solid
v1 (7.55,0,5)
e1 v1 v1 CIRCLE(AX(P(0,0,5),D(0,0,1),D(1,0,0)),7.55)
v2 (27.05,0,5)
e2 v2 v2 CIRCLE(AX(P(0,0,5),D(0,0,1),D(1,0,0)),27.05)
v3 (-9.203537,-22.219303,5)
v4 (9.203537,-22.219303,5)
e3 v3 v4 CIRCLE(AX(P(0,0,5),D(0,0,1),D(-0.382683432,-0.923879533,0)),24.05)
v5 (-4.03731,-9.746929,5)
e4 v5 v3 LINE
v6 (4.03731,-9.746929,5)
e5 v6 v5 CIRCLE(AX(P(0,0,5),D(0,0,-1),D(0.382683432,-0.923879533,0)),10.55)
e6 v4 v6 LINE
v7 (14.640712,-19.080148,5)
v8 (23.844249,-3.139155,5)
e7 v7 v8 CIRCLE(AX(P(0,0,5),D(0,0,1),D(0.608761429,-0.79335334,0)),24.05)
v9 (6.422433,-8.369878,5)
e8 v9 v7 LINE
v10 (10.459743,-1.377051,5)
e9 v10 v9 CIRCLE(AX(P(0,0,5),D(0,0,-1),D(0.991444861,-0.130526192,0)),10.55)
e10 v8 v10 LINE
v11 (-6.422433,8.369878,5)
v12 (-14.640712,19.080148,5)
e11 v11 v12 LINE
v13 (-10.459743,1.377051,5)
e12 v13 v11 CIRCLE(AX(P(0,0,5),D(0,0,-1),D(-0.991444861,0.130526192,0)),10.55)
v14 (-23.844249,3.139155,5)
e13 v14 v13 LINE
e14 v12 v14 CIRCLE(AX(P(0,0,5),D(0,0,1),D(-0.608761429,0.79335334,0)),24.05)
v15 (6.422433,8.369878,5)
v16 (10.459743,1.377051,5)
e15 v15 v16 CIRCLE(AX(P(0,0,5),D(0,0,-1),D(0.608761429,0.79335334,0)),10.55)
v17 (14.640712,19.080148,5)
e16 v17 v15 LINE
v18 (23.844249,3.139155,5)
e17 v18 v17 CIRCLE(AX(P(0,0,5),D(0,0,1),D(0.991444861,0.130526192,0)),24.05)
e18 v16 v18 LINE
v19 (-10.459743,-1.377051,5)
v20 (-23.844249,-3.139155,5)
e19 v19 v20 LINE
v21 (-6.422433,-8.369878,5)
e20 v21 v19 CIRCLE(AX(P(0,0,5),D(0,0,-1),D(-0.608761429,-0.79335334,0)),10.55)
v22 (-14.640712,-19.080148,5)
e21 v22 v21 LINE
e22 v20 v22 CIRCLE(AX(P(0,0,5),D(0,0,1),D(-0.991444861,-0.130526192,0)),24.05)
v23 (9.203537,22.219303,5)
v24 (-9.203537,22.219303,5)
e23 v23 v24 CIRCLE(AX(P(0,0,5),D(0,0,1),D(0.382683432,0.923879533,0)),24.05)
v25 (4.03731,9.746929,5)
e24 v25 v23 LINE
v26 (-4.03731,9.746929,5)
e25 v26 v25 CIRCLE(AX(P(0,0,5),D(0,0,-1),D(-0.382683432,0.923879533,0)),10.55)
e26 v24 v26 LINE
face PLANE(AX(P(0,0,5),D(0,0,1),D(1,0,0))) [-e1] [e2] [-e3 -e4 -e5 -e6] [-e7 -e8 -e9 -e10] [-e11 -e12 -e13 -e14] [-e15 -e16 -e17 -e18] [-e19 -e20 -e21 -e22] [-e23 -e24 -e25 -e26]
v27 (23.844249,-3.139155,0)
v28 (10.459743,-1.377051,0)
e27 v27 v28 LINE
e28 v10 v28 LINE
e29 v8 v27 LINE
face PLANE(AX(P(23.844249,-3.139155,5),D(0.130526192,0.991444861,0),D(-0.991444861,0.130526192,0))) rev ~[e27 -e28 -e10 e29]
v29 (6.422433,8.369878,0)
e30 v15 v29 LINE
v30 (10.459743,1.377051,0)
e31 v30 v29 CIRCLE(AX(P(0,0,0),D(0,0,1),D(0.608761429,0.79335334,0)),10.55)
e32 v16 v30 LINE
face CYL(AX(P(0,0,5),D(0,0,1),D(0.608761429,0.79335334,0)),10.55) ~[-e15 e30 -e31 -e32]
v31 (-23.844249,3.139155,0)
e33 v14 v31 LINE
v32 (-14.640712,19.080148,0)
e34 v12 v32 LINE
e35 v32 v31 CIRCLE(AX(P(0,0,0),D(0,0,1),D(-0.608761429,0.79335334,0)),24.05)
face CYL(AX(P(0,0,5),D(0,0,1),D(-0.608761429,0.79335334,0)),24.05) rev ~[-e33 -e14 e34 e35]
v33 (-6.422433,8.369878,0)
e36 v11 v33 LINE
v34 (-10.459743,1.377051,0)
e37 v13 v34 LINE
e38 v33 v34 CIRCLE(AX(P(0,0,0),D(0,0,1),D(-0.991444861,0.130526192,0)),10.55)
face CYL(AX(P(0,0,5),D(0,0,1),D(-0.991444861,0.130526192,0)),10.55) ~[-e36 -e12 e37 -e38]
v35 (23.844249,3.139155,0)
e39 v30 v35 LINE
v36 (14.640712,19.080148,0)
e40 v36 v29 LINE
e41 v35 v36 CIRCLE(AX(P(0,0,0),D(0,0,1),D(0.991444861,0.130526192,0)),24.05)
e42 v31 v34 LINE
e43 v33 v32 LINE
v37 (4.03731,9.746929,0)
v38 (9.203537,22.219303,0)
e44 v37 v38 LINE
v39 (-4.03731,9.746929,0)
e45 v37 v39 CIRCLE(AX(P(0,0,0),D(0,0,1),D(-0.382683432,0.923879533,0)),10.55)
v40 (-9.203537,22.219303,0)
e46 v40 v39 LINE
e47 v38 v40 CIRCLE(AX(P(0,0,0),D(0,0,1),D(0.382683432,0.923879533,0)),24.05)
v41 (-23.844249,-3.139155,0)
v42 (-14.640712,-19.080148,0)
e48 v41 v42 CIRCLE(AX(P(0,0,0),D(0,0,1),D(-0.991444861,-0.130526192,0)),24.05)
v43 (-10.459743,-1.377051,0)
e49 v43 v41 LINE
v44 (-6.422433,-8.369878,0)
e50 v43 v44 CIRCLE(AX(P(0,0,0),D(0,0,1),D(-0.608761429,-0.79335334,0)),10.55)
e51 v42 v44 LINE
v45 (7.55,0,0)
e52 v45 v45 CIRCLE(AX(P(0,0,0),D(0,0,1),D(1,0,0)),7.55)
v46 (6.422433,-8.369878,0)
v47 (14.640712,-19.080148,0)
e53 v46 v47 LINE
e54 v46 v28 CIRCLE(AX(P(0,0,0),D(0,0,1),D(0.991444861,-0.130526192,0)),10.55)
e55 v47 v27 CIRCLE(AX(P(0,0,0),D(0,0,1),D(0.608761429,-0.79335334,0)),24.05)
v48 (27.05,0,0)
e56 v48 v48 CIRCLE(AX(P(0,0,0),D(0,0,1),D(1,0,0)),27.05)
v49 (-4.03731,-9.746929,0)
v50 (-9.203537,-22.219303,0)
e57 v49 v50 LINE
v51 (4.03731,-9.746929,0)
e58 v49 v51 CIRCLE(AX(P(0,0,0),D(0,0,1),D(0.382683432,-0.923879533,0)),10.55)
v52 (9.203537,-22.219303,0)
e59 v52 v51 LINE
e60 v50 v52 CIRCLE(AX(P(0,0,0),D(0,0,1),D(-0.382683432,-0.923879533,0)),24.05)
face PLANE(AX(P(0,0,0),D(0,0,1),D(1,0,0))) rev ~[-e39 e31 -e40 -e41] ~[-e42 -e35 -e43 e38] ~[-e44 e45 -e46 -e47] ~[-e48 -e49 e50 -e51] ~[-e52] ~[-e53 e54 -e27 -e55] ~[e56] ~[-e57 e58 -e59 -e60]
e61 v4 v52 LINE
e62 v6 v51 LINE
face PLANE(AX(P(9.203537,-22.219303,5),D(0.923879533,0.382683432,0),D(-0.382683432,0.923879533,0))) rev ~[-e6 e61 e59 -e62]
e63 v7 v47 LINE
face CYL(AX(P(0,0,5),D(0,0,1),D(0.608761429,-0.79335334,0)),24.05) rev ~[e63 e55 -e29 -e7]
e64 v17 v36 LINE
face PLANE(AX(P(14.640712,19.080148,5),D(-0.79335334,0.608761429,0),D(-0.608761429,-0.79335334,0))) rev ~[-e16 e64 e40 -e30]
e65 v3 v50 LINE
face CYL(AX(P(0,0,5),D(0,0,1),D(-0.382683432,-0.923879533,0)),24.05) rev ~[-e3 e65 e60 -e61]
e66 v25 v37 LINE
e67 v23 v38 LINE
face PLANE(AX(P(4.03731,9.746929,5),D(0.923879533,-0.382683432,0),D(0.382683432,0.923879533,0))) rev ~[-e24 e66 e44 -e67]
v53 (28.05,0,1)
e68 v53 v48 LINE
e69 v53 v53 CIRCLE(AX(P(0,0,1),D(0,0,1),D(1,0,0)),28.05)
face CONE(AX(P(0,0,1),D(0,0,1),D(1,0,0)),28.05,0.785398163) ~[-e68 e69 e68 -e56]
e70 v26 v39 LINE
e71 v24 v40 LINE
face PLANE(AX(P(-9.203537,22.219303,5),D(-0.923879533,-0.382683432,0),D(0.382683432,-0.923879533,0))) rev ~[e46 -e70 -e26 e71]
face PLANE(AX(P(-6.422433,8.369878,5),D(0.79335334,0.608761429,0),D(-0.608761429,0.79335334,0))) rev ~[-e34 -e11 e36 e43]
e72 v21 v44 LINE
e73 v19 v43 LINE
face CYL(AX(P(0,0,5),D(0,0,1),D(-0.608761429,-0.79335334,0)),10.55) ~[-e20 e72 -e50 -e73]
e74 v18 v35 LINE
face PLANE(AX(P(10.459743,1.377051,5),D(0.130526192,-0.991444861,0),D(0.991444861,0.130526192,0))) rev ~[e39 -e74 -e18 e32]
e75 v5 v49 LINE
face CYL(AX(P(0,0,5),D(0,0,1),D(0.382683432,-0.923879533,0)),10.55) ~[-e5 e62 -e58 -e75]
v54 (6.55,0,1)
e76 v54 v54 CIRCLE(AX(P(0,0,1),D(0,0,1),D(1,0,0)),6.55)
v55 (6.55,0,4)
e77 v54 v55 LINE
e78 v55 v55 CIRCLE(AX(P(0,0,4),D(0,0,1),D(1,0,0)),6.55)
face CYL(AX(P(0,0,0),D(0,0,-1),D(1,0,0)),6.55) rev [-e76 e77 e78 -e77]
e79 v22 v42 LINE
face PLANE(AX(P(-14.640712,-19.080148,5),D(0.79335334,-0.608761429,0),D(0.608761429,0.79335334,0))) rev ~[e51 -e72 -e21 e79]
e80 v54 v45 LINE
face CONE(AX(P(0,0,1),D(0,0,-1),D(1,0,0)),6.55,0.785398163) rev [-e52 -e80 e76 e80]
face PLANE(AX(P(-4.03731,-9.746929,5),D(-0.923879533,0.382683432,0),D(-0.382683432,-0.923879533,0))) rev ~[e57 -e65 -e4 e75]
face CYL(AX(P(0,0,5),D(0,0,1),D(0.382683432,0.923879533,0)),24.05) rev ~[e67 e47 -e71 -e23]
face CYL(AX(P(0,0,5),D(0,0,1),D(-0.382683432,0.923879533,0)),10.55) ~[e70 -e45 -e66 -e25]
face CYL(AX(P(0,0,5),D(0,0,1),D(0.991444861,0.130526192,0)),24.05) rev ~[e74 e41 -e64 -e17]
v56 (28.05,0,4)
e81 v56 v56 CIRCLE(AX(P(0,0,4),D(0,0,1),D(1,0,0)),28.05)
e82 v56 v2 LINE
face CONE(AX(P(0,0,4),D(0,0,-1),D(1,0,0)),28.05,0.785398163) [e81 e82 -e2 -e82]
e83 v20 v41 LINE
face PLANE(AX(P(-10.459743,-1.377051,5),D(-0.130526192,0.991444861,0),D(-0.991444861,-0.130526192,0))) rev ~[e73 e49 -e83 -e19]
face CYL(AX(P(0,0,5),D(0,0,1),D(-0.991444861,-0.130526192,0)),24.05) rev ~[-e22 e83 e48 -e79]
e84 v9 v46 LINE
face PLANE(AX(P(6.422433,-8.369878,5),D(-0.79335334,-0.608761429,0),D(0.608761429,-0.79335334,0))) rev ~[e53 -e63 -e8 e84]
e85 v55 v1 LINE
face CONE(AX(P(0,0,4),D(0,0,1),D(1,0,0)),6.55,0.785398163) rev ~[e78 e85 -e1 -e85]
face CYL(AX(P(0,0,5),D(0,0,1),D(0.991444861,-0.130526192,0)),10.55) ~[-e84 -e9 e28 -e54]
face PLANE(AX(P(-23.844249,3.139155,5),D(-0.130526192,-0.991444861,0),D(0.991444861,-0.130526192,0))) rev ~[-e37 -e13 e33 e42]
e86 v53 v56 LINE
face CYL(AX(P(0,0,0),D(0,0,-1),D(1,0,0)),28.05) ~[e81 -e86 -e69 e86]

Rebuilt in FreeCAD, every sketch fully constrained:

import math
import FreeCAD as App
import Part
import Sketcher
from FreeCAD import Vector
Q = App.Units.Quantity


def edges_at(feature, points):
    """Names of the edges that pass closest to the given points."""
    edges = feature.Shape.Edges
    near = lambda p: min(range(len(edges)), key=lambda i: edges[i].distToShape(Part.Vertex(*p))[0])
    return sorted({f"Edge{near(p) + 1}" for p in points})

doc = App.newDocument("Part")
body = doc.addObject("PartDesign::Body", "Body")

sketch1 = body.newObject("Sketcher::SketchObject", "Sketch")
sketch1.AttachmentSupport = (doc.getObject("XY_Plane"), [""])
sketch1.MapMode = "FlatFace"
sketch1.addGeometry([
    Part.Circle(Vector(0, 0, 0), Vector(0, 0, 1), 28),
    Part.Circle(Vector(0, 0, 0), Vector(0, 0, 1), 7),
], False)
sketch1.addConstraint([
    Sketcher.Constraint("Coincident", 0, 3, -1, 1),
    Sketcher.Constraint("Coincident", 1, 3, -1, 1),
    Sketcher.Constraint("Diameter", 0, Q("56.1 mm")),
    Sketcher.Constraint("Diameter", 1, Q("13.1 mm")),
])
pad1 = body.newObject("PartDesign::Pad", "Pad")
pad1.Profile = sketch1
pad1.Length = 5
doc.recompute()

chamfer = body.newObject("PartDesign::Chamfer", "Chamfer")
chamfer.Base = (pad1, edges_at(pad1, [
    (-28.05, 0, 0),
    (-28.05, 0, 5),
    (-6.55, 0, 5),
    (-6.55, 0, 0),
]))
chamfer.Size = 1

sketch2 = body.newObject("Sketcher::SketchObject", "Sketch001")
sketch2.AttachmentSupport = (doc.getObject("XY_Plane"), [""])
sketch2.MapMode = "FlatFace"
sketch2.AttachmentOffset = App.Placement(Vector(0, 0, 5), App.Rotation())
sketch2.addGeometry([
    Part.LineSegment(Vector(4, 10, 0), Vector(9, 22, 0)),
    Part.ArcOfCircle(Part.Circle(Vector(0, 0, 0), Vector(0, 0, 1), 24), math.radians(68), math.radians(112)),
    Part.LineSegment(Vector(-9, 22, 0), Vector(-4, 10, 0)),
    Part.ArcOfCircle(Part.Circle(Vector(0, 0, 0), Vector(0, 0, 1), 11), math.radians(67), math.radians(113)),
    Part.ArcOfCircle(Part.Circle(Vector(0, 0, 0), Vector(0, 0, 1), 24), math.radians(128), math.radians(172)),
    Part.LineSegment(Vector(-24, 3, 0), Vector(-10, 1, 0)),
    Part.ArcOfCircle(Part.Circle(Vector(0, 0, 0), Vector(0, 0, 1), 11), math.radians(128), math.radians(172)),
    Part.LineSegment(Vector(-6, 8, 0), Vector(-15, 19, 0)),
    Part.ArcOfCircle(Part.Circle(Vector(0, 0, 0), Vector(0, 0, 1), 24), math.radians(-172), math.radians(-128)),
    Part.LineSegment(Vector(-15, -19, 0), Vector(-6, -8, 0)),
    Part.ArcOfCircle(Part.Circle(Vector(0, 0, 0), Vector(0, 0, 1), 11), math.radians(-172), math.radians(-128)),
    Part.LineSegment(Vector(-10, -1, 0), Vector(-24, -3, 0)),
    Part.ArcOfCircle(Part.Circle(Vector(0, 0, 0), Vector(0, 0, 1), 24), math.radians(-112), math.radians(-68)),
    Part.LineSegment(Vector(9, -22, 0), Vector(4, -10, 0)),
    Part.ArcOfCircle(Part.Circle(Vector(0, 0, 0), Vector(0, 0, 1), 11), math.radians(-113), math.radians(-67)),
    Part.LineSegment(Vector(-4, -10, 0), Vector(-9, -22, 0)),
    Part.ArcOfCircle(Part.Circle(Vector(0, 0, 0), Vector(0, 0, 1), 24), math.radians(-52), math.radians(-8)),
    Part.LineSegment(Vector(24, -3, 0), Vector(10, -1, 0)),
    Part.ArcOfCircle(Part.Circle(Vector(0, 0, 0), Vector(0, 0, 1), 11), math.radians(-52), math.radians(-8)),
    Part.LineSegment(Vector(6, -8, 0), Vector(15, -19, 0)),
    Part.ArcOfCircle(Part.Circle(Vector(0, 0, 0), Vector(0, 0, 1), 24), math.radians(8), math.radians(52)),
    Part.LineSegment(Vector(15, 19, 0), Vector(6, 8, 0)),
    Part.ArcOfCircle(Part.Circle(Vector(0, 0, 0), Vector(0, 0, 1), 11), math.radians(8), math.radians(52)),
    Part.LineSegment(Vector(10, 1, 0), Vector(24, 3, 0)),
], False)
sketch2.addConstraint([
    Sketcher.Constraint("Coincident", 0, 2, 1, 1),
    Sketcher.Constraint("Coincident", 1, 2, 2, 1),
    Sketcher.Constraint("Coincident", 2, 2, 3, 2),
    Sketcher.Constraint("Coincident", 3, 1, 0, 1),
    Sketcher.Constraint("Coincident", 4, 2, 5, 1),
    Sketcher.Constraint("Coincident", 5, 2, 6, 2),
    Sketcher.Constraint("Coincident", 6, 1, 7, 1),
    Sketcher.Constraint("Coincident", 7, 2, 4, 1),
    Sketcher.Constraint("Coincident", 8, 2, 9, 1),
    Sketcher.Constraint("Coincident", 9, 2, 10, 2),
    Sketcher.Constraint("Coincident", 10, 1, 11, 1),
    Sketcher.Constraint("Coincident", 11, 2, 8, 1),
    Sketcher.Constraint("Coincident", 12, 2, 13, 1),
    Sketcher.Constraint("Coincident", 13, 2, 14, 2),
    Sketcher.Constraint("Coincident", 14, 1, 15, 1),
    Sketcher.Constraint("Coincident", 15, 2, 12, 1),
    Sketcher.Constraint("Coincident", 16, 2, 17, 1),
    Sketcher.Constraint("Coincident", 17, 2, 18, 2),
    Sketcher.Constraint("Coincident", 18, 1, 19, 1),
    Sketcher.Constraint("Coincident", 19, 2, 16, 1),
    Sketcher.Constraint("Coincident", 20, 2, 21, 1),
    Sketcher.Constraint("Coincident", 21, 2, 22, 2),
    Sketcher.Constraint("Coincident", 22, 1, 23, 1),
    Sketcher.Constraint("Coincident", 23, 2, 20, 1),
    Sketcher.Constraint("Coincident", 1, 3, -1, 1),
    Sketcher.Constraint("Coincident", 3, 3, -1, 1),
    Sketcher.Constraint("Coincident", 4, 3, -1, 1),
    Sketcher.Constraint("Coincident", 6, 3, -1, 1),
    Sketcher.Constraint("Coincident", 8, 3, -1, 1),
    Sketcher.Constraint("Coincident", 10, 3, -1, 1),
    Sketcher.Constraint("Coincident", 12, 3, -1, 1),
    Sketcher.Constraint("Coincident", 14, 3, -1, 1),
    Sketcher.Constraint("Coincident", 16, 3, -1, 1),
    Sketcher.Constraint("Coincident", 18, 3, -1, 1),
    Sketcher.Constraint("Coincident", 20, 3, -1, 1),
    Sketcher.Constraint("Coincident", 22, 3, -1, 1),
    Sketcher.Constraint("Equal", 1, 4),
    Sketcher.Constraint("Equal", 3, 6),
    Sketcher.Constraint("Equal", 4, 8),
    Sketcher.Constraint("Equal", 6, 10),
    Sketcher.Constraint("Equal", 8, 12),
    Sketcher.Constraint("Equal", 10, 14),
    Sketcher.Constraint("Equal", 12, 16),
    Sketcher.Constraint("Equal", 14, 18),
    Sketcher.Constraint("Equal", 16, 20),
    Sketcher.Constraint("Equal", 18, 22),
    Sketcher.Constraint("Parallel", 2, 13),
    Sketcher.Constraint("Parallel", 0, 15),
    Sketcher.Constraint("Parallel", 5, 17),
    Sketcher.Constraint("Parallel", 7, 19),
    Sketcher.Constraint("Parallel", 9, 21),
    Sketcher.Constraint("Parallel", 11, 23),
    Sketcher.Constraint("Horizontal", 0, 2, 1, 2),
    Sketcher.Constraint("Horizontal", 2, 2, 3, 1),
    Sketcher.Constraint("Horizontal", 13, 2, 14, 1),
    Sketcher.Constraint("Horizontal", 11, 2, 16, 2),
    Sketcher.Constraint("Horizontal", 10, 1, 17, 2),
    Sketcher.Constraint("Horizontal", 9, 2, 18, 1),
    Sketcher.Constraint("Horizontal", 8, 2, 19, 2),
    Sketcher.Constraint("Horizontal", 7, 2, 20, 2),
    Sketcher.Constraint("Horizontal", 5, 2, 22, 1),
    Sketcher.Constraint("Vertical", 7, 2, 8, 2),
    Sketcher.Constraint("Vertical", 5, 2, 10, 1),
    Sketcher.Constraint("Vertical", 0, 2, 12, 2),
    Sketcher.Constraint("Radius", 1, Q("24.05 mm")),
    Sketcher.Constraint("Radius", 3, Q("10.55 mm")),
    Sketcher.Constraint("Angle", 0, Q("67.5 deg")),
    Sketcher.Constraint("Angle", 5, Q("-7.5 deg")),
    Sketcher.Constraint("Angle", 7, Q("127.5 deg")),
    Sketcher.Constraint("DistanceY", 8, 2, 5, 2, Q("20.457199 mm")),
    Sketcher.Constraint("DistanceX", 2, 2, -1, 1, Q("4.03731 mm")),
    Sketcher.Constraint("DistanceX", 4, 2, -1, 1, Q("23.844249 mm")),
])
pocket1 = body.newObject("PartDesign::Pocket", "Pocket")
pocket1.Profile = sketch2
pocket1.Type = "ThroughAll"

doc.recompute()
